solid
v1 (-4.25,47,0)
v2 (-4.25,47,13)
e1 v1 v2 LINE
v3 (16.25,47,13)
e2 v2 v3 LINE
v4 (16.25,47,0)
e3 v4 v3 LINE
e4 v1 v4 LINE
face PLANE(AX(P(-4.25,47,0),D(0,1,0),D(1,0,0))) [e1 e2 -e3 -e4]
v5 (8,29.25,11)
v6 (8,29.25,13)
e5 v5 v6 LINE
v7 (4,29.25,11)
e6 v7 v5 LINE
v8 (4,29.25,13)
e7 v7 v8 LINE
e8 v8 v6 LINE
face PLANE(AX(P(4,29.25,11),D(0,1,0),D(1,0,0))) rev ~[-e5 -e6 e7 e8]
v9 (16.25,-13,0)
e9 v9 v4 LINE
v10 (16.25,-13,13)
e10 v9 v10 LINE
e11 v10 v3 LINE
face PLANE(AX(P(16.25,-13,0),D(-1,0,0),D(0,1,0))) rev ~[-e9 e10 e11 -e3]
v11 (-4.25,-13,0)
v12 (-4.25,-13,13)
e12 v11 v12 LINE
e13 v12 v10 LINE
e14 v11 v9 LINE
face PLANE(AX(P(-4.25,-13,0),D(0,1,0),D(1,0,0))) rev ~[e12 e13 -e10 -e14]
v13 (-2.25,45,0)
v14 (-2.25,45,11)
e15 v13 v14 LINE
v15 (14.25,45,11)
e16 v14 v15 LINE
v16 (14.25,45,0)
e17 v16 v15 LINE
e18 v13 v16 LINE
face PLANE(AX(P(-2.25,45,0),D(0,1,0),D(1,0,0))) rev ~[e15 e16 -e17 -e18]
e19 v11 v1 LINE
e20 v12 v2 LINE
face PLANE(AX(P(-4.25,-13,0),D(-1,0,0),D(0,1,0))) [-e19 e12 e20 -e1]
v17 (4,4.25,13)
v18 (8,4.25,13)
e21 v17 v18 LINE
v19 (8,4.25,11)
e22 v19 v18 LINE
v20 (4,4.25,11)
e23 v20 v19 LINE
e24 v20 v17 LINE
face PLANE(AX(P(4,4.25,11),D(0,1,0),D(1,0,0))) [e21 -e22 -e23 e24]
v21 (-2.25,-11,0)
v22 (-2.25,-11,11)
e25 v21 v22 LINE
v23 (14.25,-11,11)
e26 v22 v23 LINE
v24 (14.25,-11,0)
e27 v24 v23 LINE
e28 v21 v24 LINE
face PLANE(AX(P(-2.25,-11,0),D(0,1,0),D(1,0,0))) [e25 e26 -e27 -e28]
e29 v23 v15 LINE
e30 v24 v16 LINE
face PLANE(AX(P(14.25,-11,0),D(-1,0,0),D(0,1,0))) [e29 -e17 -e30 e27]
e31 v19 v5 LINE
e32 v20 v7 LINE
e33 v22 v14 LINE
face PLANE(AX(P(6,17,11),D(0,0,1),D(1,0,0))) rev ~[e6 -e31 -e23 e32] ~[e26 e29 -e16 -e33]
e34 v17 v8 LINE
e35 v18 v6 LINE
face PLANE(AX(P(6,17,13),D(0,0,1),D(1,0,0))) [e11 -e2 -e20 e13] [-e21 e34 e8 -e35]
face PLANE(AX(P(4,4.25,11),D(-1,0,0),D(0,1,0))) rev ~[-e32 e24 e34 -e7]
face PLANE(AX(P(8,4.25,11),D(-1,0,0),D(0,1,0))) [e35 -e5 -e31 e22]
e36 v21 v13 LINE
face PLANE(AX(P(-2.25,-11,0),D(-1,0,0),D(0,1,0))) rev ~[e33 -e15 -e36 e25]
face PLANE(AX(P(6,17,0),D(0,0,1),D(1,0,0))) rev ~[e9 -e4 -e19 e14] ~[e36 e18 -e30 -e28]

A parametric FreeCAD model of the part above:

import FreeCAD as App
import Part
import Sketcher
from FreeCAD import Vector
Q = App.Units.Quantity

doc = App.newDocument("Part")
body = doc.addObject("PartDesign::Body", "Body")

sketch1 = doc.addObject("Sketcher::SketchObject", "Sketch")
body.addObject(sketch1)
sketch1.AttachmentSupport = (doc.XY_Plane, [""])
sketch1.MapMode = "FlatFace"
sketch1.addGeometry(Part.LineSegment(Vector(-2, 45, 0), Vector(-2, -11, 0)), False)
sketch1.addGeometry(Part.LineSegment(Vector(-2, -11, 0), Vector(14, -11, 0)), False)
sketch1.addGeometry(Part.LineSegment(Vector(14, -11, 0), Vector(14, 45, 0)), False)
sketch1.addGeometry(Part.LineSegment(Vector(14, 45, 0), Vector(-2, 45, 0)), False)
sketch1.addConstraint(Sketcher.Constraint("Coincident", 0, 2, 1, 1))
sketch1.addConstraint(Sketcher.Constraint("Coincident", 1, 2, 2, 1))
sketch1.addConstraint(Sketcher.Constraint("Coincident", 2, 2, 3, 1))
sketch1.addConstraint(Sketcher.Constraint("Coincident", 3, 2, 0, 1))
sketch1.addConstraint(Sketcher.Constraint("Vertical", 0))
sketch1.addConstraint(Sketcher.Constraint("Horizontal", 1))
sketch1.addConstraint(Sketcher.Constraint("Vertical", 2))
sketch1.addConstraint(Sketcher.Constraint("Horizontal", 3))
sketch1.addConstraint(Sketcher.Constraint("DistanceY", 0, 2, 0, 1, Q("56 mm")))
sketch1.addConstraint(Sketcher.Constraint("DistanceX", 1, 1, 1, 2, Q("16.5 mm")))
sketch1.addConstraint(Sketcher.Constraint("DistanceY", 0, 2, -1, 1, Q("11 mm")))
sketch1.addConstraint(Sketcher.Constraint("DistanceX", 0, 2, -1, 1, Q("2.25 mm")))
pad1 = doc.addObject("PartDesign::Pad", "Pad")
body.addObject(pad1)
pad1.Profile = sketch1
pad1.Length = 11
body2 = doc.addObject("PartDesign::Body", "Body001")

sketch2 = doc.addObject("Sketcher::SketchObject", "Sketch001")
body2.addObject(sketch2)
sketch2.AttachmentSupport = (doc.getObject("XY_Plane001"), [""])
sketch2.MapMode = "FlatFace"
sketch2.AttachmentOffset = App.Placement(Vector(0, 0, 11), App.Rotation())
sketch2.addGeometry(Part.LineSegment(Vector(4, 29.2, 0), Vector(4, 4.2, 0)), False)
sketch2.addGeometry(Part.LineSegment(Vector(4, 4.2, 0), Vector(8, 4.2, 0)), False)
sketch2.addGeometry(Part.LineSegment(Vector(8, 4.2, 0), Vector(8, 29.2, 0)), False)
sketch2.addGeometry(Part.LineSegment(Vector(8, 29.2, 0), Vector(4, 29.2, 0)), False)
sketch2.addConstraint(Sketcher.Constraint("Coincident", 0, 2, 1, 1))
sketch2.addConstraint(Sketcher.Constraint("Coincident", 1, 2, 2, 1))
sketch2.addConstraint(Sketcher.Constraint("Coincident", 2, 2, 3, 1))
sketch2.addConstraint(Sketcher.Constraint("Coincident", 3, 2, 0, 1))
sketch2.addConstraint(Sketcher.Constraint("Vertical", 0))
sketch2.addConstraint(Sketcher.Constraint("Horizontal", 1))
sketch2.addConstraint(Sketcher.Constraint("Vertical", 2))
sketch2.addConstraint(Sketcher.Constraint("Horizontal", 3))
sketch2.addConstraint(Sketcher.Constraint("DistanceX", 1, 1, 1, 2, Q("4 mm")))
sketch2.addConstraint(Sketcher.Constraint("DistanceY", 0, 2, 0, 1, Q("25 mm")))
sketch2.addConstraint(Sketcher.Constraint("DistanceX", -1, 1, 0, 2, Q("4 mm")))
sketch2.addConstraint(Sketcher.Constraint("DistanceY", -1, 1, 0, 2, Q("4.25 mm")))
pad2 = doc.addObject("PartDesign::Pad", "Pad001")
body2.addObject(pad2)
pad2.Profile = sketch2
pad2.Length = 2
doc.recompute()

boolean = doc.addObject("PartDesign::Boolean", "Boolean")
body2.addObject(boolean)
boolean.Type = "Fuse"
boolean.addObjects([body])
body3 = doc.addObject("PartDesign::Body", "Body002")

sketch3 = doc.addObject("Sketcher::SketchObject", "Sketch002")
body3.addObject(sketch3)
sketch3.AttachmentSupport = (doc.getObject("XY_Plane002"), [""])
sketch3.MapMode = "FlatFace"
sketch3.addGeometry(Part.LineSegment(Vector(-4, 47, 0), Vector(-4, -13, 0)), False)
sketch3.addGeometry(Part.LineSegment(Vector(-4, -13, 0), Vector(16, -13, 0)), False)
sketch3.addGeometry(Part.LineSegment(Vector(16, -13, 0), Vector(16, 47, 0)), False)
sketch3.addGeometry(Part.LineSegment(Vector(16, 47, 0), Vector(-4, 47, 0)), False)
sketch3.addConstraint(Sketcher.Constraint("Coincident", 0, 2, 1, 1))
sketch3.addConstraint(Sketcher.Constraint("Coincident", 1, 2, 2, 1))
sketch3.addConstraint(Sketcher.Constraint("Coincident", 2, 2, 3, 1))
sketch3.addConstraint(Sketcher.Constraint("Coincident", 3, 2, 0, 1))
sketch3.addConstraint(Sketcher.Constraint("Vertical", 0))
sketch3.addConstraint(Sketcher.Constraint("Horizontal", 1))
sketch3.addConstraint(Sketcher.Constraint("Vertical", 2))
sketch3.addConstraint(Sketcher.Constraint("Horizontal", 3))
sketch3.addConstraint(Sketcher.Constraint("DistanceY", 0, 2, 0, 1, Q("60 mm")))
sketch3.addConstraint(Sketcher.Constraint("DistanceX", 1, 1, 1, 2, Q("20.5 mm")))
sketch3.addConstraint(Sketcher.Constraint("DistanceY", 0, 2, -1, 1, Q("13 mm")))
sketch3.addConstraint(Sketcher.Constraint("DistanceX", 0, 2, -1, 1, Q("4.25 mm")))
pad3 = doc.addObject("PartDesign::Pad", "Pad002")
body3.addObject(pad3)
pad3.Profile = sketch3
pad3.Length = 13
doc.recompute()

boolean2 = doc.addObject("PartDesign::Boolean", "Boolean001")
body3.addObject(boolean2)
boolean2.Type = "Cut"
boolean2.addObjects([body2])

doc.recompute()
